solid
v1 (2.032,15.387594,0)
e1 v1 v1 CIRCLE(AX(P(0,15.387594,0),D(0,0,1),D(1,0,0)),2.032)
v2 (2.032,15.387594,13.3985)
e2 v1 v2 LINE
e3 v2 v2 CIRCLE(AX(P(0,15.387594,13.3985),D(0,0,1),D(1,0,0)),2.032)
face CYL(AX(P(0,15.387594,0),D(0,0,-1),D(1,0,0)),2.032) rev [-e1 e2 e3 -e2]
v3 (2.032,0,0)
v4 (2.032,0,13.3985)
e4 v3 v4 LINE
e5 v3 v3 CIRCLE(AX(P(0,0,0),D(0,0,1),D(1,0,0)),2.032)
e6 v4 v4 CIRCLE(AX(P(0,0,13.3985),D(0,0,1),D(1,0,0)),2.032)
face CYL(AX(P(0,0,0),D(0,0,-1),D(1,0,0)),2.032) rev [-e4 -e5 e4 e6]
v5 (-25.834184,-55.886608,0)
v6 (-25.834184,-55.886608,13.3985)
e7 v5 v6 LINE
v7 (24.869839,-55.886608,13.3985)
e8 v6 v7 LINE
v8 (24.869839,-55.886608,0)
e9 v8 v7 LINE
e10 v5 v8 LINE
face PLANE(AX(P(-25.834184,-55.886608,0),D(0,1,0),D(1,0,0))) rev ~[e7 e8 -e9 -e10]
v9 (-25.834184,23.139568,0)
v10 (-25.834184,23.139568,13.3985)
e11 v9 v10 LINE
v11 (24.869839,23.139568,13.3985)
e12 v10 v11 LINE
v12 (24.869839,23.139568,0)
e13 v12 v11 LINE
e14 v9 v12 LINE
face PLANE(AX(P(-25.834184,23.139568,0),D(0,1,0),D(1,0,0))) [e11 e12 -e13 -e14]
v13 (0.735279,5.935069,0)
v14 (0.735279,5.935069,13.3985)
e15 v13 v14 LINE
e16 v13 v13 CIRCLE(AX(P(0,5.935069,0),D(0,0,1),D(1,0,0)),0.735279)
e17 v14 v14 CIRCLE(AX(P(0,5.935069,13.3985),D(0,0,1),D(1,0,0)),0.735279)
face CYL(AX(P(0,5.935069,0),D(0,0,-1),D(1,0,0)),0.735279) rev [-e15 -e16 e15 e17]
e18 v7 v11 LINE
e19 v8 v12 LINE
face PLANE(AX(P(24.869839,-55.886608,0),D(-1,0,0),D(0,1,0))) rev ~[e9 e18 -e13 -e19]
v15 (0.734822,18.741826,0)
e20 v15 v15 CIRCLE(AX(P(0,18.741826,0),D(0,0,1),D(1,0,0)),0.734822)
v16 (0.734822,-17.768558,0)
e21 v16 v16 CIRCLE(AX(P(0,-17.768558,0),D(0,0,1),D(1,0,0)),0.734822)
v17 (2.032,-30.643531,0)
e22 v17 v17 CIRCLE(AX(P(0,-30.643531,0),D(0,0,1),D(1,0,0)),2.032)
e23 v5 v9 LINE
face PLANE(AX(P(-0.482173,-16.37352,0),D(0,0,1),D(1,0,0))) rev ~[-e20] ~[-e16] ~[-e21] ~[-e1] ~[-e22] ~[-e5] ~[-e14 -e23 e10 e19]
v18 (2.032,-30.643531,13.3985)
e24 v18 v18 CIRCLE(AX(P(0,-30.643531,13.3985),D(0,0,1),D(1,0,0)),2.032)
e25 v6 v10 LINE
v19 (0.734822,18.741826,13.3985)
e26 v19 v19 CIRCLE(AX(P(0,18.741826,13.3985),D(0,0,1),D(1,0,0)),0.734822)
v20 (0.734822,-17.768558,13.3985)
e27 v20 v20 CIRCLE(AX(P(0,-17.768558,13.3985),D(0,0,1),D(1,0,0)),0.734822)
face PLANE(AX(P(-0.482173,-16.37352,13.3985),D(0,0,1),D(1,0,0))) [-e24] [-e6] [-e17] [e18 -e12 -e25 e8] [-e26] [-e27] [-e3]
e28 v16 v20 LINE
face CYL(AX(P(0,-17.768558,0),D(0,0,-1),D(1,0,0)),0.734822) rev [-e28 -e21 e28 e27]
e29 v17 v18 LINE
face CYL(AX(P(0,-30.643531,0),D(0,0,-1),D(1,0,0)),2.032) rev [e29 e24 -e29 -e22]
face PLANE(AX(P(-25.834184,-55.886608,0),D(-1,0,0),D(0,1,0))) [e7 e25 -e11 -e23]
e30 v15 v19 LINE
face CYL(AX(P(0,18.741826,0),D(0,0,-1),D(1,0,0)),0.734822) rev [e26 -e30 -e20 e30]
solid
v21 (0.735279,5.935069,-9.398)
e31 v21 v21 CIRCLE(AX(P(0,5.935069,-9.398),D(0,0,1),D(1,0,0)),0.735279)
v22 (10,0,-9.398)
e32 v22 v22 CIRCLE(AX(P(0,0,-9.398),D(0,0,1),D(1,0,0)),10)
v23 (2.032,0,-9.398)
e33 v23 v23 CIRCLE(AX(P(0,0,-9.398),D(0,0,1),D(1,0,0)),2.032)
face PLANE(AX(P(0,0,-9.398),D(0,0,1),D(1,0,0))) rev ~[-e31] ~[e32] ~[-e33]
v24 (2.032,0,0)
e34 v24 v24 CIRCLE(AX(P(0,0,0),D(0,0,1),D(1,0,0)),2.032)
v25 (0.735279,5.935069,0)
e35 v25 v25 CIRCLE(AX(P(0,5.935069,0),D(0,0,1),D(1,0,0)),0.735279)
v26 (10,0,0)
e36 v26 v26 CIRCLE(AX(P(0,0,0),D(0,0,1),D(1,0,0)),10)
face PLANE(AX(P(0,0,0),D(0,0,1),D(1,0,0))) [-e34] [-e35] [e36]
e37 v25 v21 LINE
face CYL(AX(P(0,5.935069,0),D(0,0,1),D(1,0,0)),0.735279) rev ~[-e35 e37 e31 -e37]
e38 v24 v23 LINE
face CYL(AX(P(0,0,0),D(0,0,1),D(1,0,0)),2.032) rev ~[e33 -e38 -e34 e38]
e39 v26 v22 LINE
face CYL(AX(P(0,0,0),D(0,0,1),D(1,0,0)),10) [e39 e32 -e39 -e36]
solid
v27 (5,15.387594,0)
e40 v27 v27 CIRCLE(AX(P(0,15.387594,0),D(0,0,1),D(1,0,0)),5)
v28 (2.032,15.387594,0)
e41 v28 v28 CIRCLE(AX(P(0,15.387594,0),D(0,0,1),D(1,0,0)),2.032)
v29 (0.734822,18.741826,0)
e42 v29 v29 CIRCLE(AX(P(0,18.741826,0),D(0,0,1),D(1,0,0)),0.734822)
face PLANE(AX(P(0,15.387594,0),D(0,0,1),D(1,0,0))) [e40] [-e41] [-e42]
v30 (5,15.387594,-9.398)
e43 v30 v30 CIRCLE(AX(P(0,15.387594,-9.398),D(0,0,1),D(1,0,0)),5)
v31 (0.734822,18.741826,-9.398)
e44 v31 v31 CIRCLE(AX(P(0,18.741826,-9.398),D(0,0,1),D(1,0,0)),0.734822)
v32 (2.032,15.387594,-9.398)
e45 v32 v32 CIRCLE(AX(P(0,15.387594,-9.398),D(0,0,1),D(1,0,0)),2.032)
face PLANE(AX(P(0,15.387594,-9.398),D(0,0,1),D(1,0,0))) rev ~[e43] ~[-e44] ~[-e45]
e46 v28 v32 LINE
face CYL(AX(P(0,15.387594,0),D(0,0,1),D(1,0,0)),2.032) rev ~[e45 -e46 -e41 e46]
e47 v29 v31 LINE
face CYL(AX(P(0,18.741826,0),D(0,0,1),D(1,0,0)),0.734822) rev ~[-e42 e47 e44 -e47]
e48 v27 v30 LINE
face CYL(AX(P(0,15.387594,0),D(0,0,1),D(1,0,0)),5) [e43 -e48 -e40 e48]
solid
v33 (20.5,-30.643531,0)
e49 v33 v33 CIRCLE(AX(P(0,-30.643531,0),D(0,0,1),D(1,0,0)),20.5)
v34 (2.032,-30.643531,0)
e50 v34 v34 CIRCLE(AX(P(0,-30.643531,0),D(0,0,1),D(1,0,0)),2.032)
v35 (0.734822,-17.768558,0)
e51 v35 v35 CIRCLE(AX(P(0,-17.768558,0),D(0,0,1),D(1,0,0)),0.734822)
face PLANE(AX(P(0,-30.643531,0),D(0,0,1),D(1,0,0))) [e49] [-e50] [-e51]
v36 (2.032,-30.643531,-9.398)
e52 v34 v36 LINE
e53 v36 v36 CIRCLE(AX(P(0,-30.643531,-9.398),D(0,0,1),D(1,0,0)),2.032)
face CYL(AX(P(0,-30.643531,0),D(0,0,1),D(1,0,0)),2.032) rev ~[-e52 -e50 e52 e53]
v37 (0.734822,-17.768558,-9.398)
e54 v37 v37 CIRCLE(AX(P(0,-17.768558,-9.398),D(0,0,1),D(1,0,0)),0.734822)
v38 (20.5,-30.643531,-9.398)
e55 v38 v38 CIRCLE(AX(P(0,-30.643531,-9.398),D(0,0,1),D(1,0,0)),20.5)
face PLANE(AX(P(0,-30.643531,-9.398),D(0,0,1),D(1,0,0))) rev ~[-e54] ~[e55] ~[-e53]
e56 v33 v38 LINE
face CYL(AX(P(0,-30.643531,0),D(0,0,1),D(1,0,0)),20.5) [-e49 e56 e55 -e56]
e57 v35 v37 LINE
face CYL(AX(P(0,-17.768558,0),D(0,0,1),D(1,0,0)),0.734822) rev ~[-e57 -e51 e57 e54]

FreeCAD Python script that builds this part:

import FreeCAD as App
import Part
import Sketcher

V = App.Vector


def add_polygon(sketch, points):
    """Adds a closed chain of lines whose ends are joined by coincident constraints."""
    first, n = sketch.GeometryCount, len(points)
    for a, b in zip(points, points[1:] + points[:1]):
        sketch.addGeometry(Part.LineSegment(App.Vector(*a, 0), App.Vector(*b, 0)), False)
    for i in range(n):
        sketch.addConstraint(Sketcher.Constraint("Coincident", first + i, 2, first + (i + 1) % n, 1))

doc = App.newDocument("Part")
params = doc.addObject("Spreadsheet::Sheet", "Params")
for row, (alias, value) in enumerate([
    ("sketch1_diameter", "10 mm"),
    ("sketch1_diameter2", "20 mm"),
    ("sketch1_diameter3", "41 mm"),
    ("pad1_length", "9.398 mm"),
    ("pad2_length", "13.3985 mm"),
], start=1):
    params.set(f"A{row}", alias)
    params.set(f"B{row}", "=" + value)
    params.setAlias(f"B{row}", alias)

body = doc.addObject("PartDesign::Body", "Body")
body.AllowCompound = True

sketch1 = body.newObject("Sketcher::SketchObject", "Sketch")
sketch1.AttachmentSupport = (doc.getObject("XY_Plane"), [""])
sketch1.MapMode = "FlatFace"
sketch1.addGeometry([
    Part.Circle(V(0, 15.4, 0), V(0, 0, 1), 5),
    Part.Circle(V(0, 15.4, 0), V(0, 0, 1), 2),
    Part.Circle(V(0, 18.7, 0), V(0, 0, 1), 0.7),
    Part.Circle(V(0, 0, 0), V(0, 0, 1), 10),
    Part.Circle(V(0, 0, 0), V(0, 0, 1), 2),
    Part.Circle(V(0, 5.9, 0), V(0, 0, 1), 0.7),
    Part.Circle(V(0, -30.6, 0), V(0, 0, 1), 20.5),
    Part.Circle(V(0, -30.6, 0), V(0, 0, 1), 2),
    Part.Circle(V(0, -17.8, 0), V(0, 0, 1), 0.7),
], False)
sketch1.addConstraint([
    Sketcher.Constraint("Coincident", 3, 3, -1, 1),
    Sketcher.Constraint("Coincident", 4, 3, -1, 1),
    Sketcher.Constraint("Coincident", 1, 3, 0, 3),
    Sketcher.Constraint("Coincident", 7, 3, 6, 3),
    Sketcher.Constraint("Equal", 1, 4),
    Sketcher.Constraint("Equal", 4, 7),
    Sketcher.Constraint("Equal", 2, 8),
    Sketcher.Constraint("PointOnObject", 0, 3, -2),
    Sketcher.Constraint("PointOnObject", 2, 3, -2),
    Sketcher.Constraint("PointOnObject", 5, 3, -2),
    Sketcher.Constraint("PointOnObject", 6, 3, -2),
    Sketcher.Constraint("PointOnObject", 8, 3, -2),
    Sketcher.Constraint("Diameter", 0, 10.0),
    Sketcher.Constraint("Diameter", 3, 20.0),
    Sketcher.Constraint("Diameter", 6, 41.0),
    Sketcher.Constraint("Diameter", 1, 4.064),
    Sketcher.Constraint("Diameter", 2, 1.469644),
    Sketcher.Constraint("Diameter", 5, 1.470558),
    Sketcher.Constraint("DistanceY", 6, 3, 5, 3, 36.5786),
    Sketcher.Constraint("DistanceY", -1, 1, 5, 3, 5.935069),
    Sketcher.Constraint("DistanceY", 0, 3, 2, 3, 3.354232),
    Sketcher.Constraint("DistanceY", -1, 1, 0, 3, 15.387594),
    Sketcher.Constraint("DistanceY", 8, 3, -1, 1, 17.768558),
])
sketch1.setExpression("Constraints[12]", "Params.sketch1_diameter")
sketch1.setExpression("Constraints[13]", "Params.sketch1_diameter2")
sketch1.setExpression("Constraints[14]", "Params.sketch1_diameter3")
pad1 = body.newObject("PartDesign::Pad", "Pad")
pad1.Profile = sketch1
pad1.setExpression("Length", "Params.pad1_length")
pad1.Reversed = True
body2 = doc.addObject("PartDesign::Body", "Body001")

sketch2 = body2.newObject("Sketcher::SketchObject", "Sketch001")
sketch2.AttachmentSupport = (doc.getObject("XY_Plane001"), [""])
sketch2.MapMode = "FlatFace"
add_polygon(sketch2, [(-25.8, 23.1), (-25.8, -55.9), (24.9, -55.9), (24.9, 23.1)])
sketch2.addGeometry(Part.Circle(V(0, -30.6, 0), V(0, 0, 1), 2), False)
sketch2.addGeometry(Part.Circle(V(0, -17.8, 0), V(0, 0, 1), 0.7), False)
sketch2.addGeometry(Part.Circle(V(0, 0, 0), V(0, 0, 1), 2), False)
sketch2.addGeometry(Part.Circle(V(0, 5.9, 0), V(0, 0, 1), 0.7), False)
sketch2.addGeometry(Part.Circle(V(0, 15.4, 0), V(0, 0, 1), 2), False)
sketch2.addGeometry(Part.Circle(V(0, 18.7, 0), V(0, 0, 1), 0.7), False)
sketch2.addConstraint([
    Sketcher.Constraint("Vertical", 0),
    Sketcher.Constraint("Horizontal", 1),
    Sketcher.Constraint("Vertical", 2),
    Sketcher.Constraint("Horizontal", 3),
    Sketcher.Constraint("Coincident", 6, 3, -1, 1),
    Sketcher.Constraint("Equal", 4, 6),
    Sketcher.Constraint("Equal", 6, 8),
    Sketcher.Constraint("Equal", 5, 9),
    Sketcher.Constraint("PointOnObject", 4, 3, -2),
    Sketcher.Constraint("PointOnObject", 5, 3, -2),
    Sketcher.Constraint("PointOnObject", 7, 3, -2),
    Sketcher.Constraint("PointOnObject", 8, 3, -2),
    Sketcher.Constraint("PointOnObject", 9, 3, -2),
    Sketcher.Constraint("Diameter", 4, 4.064),
    Sketcher.Constraint("Diameter", 5, 1.469644),
    Sketcher.Constraint("Diameter", 7, 1.470558),
    Sketcher.Constraint("DistanceY", 4, 3, 7, 3, 36.5786),
    Sketcher.Constraint("DistanceY", 7, 3, 2, 2, 17.204499),
    Sketcher.Constraint("DistanceX", 1, 1, 1, 2, 50.704023),
    Sketcher.Constraint("DistanceY", 0, 2, 0, 1, 79.026176),
    Sketcher.Constraint("DistanceY", 4, 3, -1, 1, 30.643531),
    Sketcher.Constraint("DistanceX", -1, 1, 1, 2, 24.869839),
    Sketcher.Constraint("DistanceY", 8, 3, 9, 3, 3.354232),
    Sketcher.Constraint("DistanceY", 0, 2, 5, 3, 38.11805),
    Sketcher.Constraint("DistanceY", -1, 1, 8, 3, 15.387594),
])
pad2 = body2.newObject("PartDesign::Pad", "Pad001")
pad2.Profile = sketch2
pad2.setExpression("Length", "Params.pad2_length")

doc.recompute()
